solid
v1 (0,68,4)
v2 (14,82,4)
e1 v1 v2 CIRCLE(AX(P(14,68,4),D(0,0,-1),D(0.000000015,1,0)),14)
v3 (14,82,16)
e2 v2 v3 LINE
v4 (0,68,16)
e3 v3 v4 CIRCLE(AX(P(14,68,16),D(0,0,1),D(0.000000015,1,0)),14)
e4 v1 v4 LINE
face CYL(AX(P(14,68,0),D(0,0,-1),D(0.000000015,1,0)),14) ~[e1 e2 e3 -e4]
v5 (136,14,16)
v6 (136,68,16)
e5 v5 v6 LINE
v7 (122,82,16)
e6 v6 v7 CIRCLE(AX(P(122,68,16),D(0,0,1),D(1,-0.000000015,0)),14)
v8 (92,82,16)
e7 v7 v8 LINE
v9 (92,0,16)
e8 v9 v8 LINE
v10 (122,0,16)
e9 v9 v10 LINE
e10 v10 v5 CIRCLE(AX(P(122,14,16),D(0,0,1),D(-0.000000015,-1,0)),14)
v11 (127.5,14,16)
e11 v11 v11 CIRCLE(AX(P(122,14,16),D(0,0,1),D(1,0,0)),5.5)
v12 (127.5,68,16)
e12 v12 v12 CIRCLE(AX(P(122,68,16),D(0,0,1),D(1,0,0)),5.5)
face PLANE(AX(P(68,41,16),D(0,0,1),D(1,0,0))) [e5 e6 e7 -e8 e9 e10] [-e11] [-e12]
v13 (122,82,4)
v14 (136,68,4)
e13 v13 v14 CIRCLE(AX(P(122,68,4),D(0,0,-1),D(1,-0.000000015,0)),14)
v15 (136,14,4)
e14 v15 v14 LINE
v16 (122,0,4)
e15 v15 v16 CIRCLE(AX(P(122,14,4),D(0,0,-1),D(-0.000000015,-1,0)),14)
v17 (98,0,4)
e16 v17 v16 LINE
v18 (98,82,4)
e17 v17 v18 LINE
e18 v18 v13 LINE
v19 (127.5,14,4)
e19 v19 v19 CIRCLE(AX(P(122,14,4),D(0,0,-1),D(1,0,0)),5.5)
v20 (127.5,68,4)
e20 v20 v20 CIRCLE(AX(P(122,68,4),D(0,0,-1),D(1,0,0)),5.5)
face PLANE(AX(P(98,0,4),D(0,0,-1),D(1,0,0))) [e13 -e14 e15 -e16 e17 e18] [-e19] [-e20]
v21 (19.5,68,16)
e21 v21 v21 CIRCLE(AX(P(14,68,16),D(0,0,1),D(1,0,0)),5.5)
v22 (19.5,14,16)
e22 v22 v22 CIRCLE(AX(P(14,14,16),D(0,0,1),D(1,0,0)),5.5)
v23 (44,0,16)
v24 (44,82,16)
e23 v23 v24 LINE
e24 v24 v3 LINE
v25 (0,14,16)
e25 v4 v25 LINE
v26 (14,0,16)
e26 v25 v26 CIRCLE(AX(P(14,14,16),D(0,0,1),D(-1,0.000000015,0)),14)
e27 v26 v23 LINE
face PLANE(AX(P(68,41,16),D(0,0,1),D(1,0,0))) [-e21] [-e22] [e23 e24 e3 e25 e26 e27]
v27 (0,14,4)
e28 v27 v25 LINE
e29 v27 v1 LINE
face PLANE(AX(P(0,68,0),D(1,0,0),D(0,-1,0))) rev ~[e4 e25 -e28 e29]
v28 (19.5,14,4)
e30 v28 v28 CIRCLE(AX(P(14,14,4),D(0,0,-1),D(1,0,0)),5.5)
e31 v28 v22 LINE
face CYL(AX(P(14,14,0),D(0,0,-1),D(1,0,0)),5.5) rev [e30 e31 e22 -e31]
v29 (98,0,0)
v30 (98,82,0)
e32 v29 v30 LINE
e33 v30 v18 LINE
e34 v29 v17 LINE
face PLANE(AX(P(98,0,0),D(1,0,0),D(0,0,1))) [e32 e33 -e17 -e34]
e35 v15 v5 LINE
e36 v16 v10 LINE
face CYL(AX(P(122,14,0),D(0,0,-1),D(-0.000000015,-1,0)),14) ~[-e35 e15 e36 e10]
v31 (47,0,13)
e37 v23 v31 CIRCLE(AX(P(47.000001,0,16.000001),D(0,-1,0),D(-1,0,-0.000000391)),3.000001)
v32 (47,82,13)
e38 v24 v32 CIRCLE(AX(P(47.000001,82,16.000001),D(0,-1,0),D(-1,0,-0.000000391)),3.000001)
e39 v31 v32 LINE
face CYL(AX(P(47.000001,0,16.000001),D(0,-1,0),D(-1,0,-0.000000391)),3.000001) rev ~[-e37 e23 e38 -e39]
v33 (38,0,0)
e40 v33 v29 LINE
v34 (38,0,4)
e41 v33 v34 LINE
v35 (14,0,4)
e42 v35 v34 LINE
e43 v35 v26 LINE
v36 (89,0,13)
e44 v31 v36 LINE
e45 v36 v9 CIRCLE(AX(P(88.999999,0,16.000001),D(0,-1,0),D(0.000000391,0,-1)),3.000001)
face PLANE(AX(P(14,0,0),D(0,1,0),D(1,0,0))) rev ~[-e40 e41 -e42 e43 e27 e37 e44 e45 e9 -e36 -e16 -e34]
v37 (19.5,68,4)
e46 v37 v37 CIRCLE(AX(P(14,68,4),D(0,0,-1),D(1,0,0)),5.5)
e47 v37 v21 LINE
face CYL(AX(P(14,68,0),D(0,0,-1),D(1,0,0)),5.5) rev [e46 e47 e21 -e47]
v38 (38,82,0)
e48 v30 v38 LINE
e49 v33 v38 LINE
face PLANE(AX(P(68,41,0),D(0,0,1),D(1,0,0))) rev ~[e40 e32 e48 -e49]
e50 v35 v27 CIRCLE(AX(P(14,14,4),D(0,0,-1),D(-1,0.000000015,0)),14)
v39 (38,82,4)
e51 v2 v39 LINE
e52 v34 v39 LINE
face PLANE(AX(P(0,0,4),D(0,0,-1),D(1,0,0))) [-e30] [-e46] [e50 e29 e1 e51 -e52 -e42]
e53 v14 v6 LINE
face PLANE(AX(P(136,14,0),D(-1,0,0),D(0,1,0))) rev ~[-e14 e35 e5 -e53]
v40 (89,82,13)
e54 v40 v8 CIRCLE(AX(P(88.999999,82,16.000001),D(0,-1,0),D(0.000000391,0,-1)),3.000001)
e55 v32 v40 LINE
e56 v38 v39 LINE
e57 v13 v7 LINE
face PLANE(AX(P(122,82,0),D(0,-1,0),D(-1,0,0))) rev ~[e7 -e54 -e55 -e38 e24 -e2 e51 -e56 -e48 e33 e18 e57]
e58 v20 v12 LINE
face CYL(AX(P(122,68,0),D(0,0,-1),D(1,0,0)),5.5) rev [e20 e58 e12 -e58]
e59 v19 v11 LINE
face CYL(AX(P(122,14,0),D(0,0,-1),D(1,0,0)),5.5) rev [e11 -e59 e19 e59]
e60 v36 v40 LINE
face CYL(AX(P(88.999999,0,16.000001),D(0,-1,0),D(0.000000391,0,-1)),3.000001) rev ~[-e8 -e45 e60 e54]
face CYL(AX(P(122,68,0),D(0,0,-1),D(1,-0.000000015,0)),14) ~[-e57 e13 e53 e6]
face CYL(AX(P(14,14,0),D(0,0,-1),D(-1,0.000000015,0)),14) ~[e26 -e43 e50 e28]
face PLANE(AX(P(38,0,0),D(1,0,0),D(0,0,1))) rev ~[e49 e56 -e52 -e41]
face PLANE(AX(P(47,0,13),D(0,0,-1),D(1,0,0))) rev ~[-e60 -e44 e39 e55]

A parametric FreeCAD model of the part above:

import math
import FreeCAD as App
import Part
import Sketcher

V = App.Vector
Q = App.Units.Quantity


def add_polygon(sketch, points):
    """Adds a closed chain of lines whose ends are joined by coincident constraints."""
    first, n = sketch.GeometryCount, len(points)
    for a, b in zip(points, points[1:] + points[:1]):
        sketch.addGeometry(Part.LineSegment(App.Vector(*a, 0), App.Vector(*b, 0)), False)
    for i in range(n):
        sketch.addConstraint(Sketcher.Constraint("Coincident", first + i, 2, first + (i + 1) % n, 1))

doc = App.newDocument("Part")
body = doc.addObject("PartDesign::Body", "Body")

sketch1 = body.newObject("Sketcher::SketchObject", "Sketch")
sketch1.AttachmentSupport = (doc.getObject("XY_Plane"), [""])
sketch1.MapMode = "FlatFace"
sketch1.addGeometry([
    Part.ArcOfCircle(Part.Circle(V(14, 14, 0), V(0, 0, 1), 14), math.radians(180), math.radians(270)),
    Part.LineSegment(V(14, 0, 0), V(122, 0, 0)),
    Part.ArcOfCircle(Part.Circle(V(122, 14, 0), V(0, 0, 1), 14), math.radians(-90), math.radians(0)),
    Part.LineSegment(V(136, 14, 0), V(136, 68, 0)),
    Part.ArcOfCircle(Part.Circle(V(122, 68, 0), V(0, 0, 1), 14), math.radians(0), math.radians(90)),
    Part.LineSegment(V(122, 82, 0), V(14, 82, 0)),
    Part.ArcOfCircle(Part.Circle(V(14, 68, 0), V(0, 0, 1), 14), math.radians(90), math.radians(180)),
    Part.LineSegment(V(0, 68, 0), V(0, 14, 0)),
    Part.Circle(V(14, 14, 0), V(0, 0, 1), 6),
    Part.Circle(V(122, 14, 0), V(0, 0, 1), 6),
    Part.Circle(V(14, 68, 0), V(0, 0, 1), 6),
    Part.Circle(V(122, 68, 0), V(0, 0, 1), 6),
], False)
sketch1.addConstraint([
    Sketcher.Constraint("Tangent", 0, 2, 1, 1),
    Sketcher.Constraint("Tangent", 1, 2, 2, 1),
    Sketcher.Constraint("Tangent", 2, 2, 3, 1),
    Sketcher.Constraint("Tangent", 3, 2, 4, 1),
    Sketcher.Constraint("Tangent", 4, 2, 5, 1),
    Sketcher.Constraint("Tangent", 5, 2, 6, 1),
    Sketcher.Constraint("Tangent", 6, 2, 7, 1),
    Sketcher.Constraint("Tangent", 7, 2, 0, 1),
    Sketcher.Constraint("Horizontal", 1),
    Sketcher.Constraint("Vertical", 3),
    Sketcher.Constraint("Horizontal", 5),
    Sketcher.Constraint("Vertical", 7),
    Sketcher.Constraint("Coincident", 8, 3, 0, 3),
    Sketcher.Constraint("Coincident", 9, 3, 2, 3),
    Sketcher.Constraint("Coincident", 10, 3, 6, 3),
    Sketcher.Constraint("Coincident", 11, 3, 4, 3),
    Sketcher.Constraint("Equal", 0, 2),
    Sketcher.Constraint("Equal", 2, 4),
    Sketcher.Constraint("Equal", 4, 6),
    Sketcher.Constraint("Equal", 8, 9),
    Sketcher.Constraint("Equal", 9, 10),
    Sketcher.Constraint("Equal", 10, 11),
    Sketcher.Constraint("PointOnObject", 0, 2, -1),
    Sketcher.Constraint("PointOnObject", 6, 2, -2),
    Sketcher.Constraint("Diameter", 8, Q("11 mm")),
    Sketcher.Constraint("Radius", 0, Q("14 mm")),
    Sketcher.Constraint("DistanceX", 1, 1, 1, 2, Q("108 mm")),
    Sketcher.Constraint("DistanceY", 3, 1, 3, 2, Q("54 mm")),
])
pad1 = body.newObject("PartDesign::Pad", "Pad")
pad1.Profile = sketch1
pad1.Length = 16

sketch2 = body.newObject("Sketcher::SketchObject", "Sketch001")
sketch2.AttachmentSupport = (doc.getObject("XZ_Plane"), [""])
sketch2.MapMode = "FlatFace"
add_polygon(sketch2, [(0, 4), (0, 0), (38, 0), (38, 4)])
add_polygon(sketch2, [(98, 4), (98, 0), (136, 0), (136, 4)])
sketch2.addGeometry(Part.LineSegment(V(92, 16, 0), V(44, 16, 0)), False)
sketch2.addGeometry(Part.ArcOfCircle(Part.Circle(V(47, 16, 0), V(0, 0, 1), 3), math.radians(-180), math.radians(-90)), False)
sketch2.addGeometry(Part.LineSegment(V(47, 13, 0), V(89, 13, 0)), False)
sketch2.addGeometry(Part.ArcOfCircle(Part.Circle(V(89, 16, 0), V(0, 0, 1), 3), math.radians(-90), math.radians(0)), False)
sketch2.addConstraint([
    Sketcher.Constraint("Coincident", 8, 2, 9, 1),
    Sketcher.Constraint("Tangent", 9, 2, 10, 1),
    Sketcher.Constraint("Tangent", 10, 2, 11, 1),
    Sketcher.Constraint("Coincident", 11, 2, 8, 1),
    Sketcher.Constraint("Vertical", 0),
    Sketcher.Constraint("Horizontal", 1),
    Sketcher.Constraint("Vertical", 2),
    Sketcher.Constraint("Horizontal", 3),
    Sketcher.Constraint("Vertical", 4),
    Sketcher.Constraint("Horizontal", 5),
    Sketcher.Constraint("Vertical", 6),
    Sketcher.Constraint("Horizontal", 7),
    Sketcher.Constraint("Horizontal", 8),
    Sketcher.Constraint("Horizontal", 10),
    Sketcher.Constraint("Coincident", 0, 2, -1, 1),
    Sketcher.Constraint("Equal", 9, 11),
    Sketcher.Constraint("PointOnObject", 4, 2, -1),
    Sketcher.Constraint("Horizontal", 3, 2, 6, 2),
    Sketcher.Constraint("Horizontal", 11, 3, 8, 2),
    Sketcher.Constraint("Equal", 3, 5),
    Sketcher.Constraint("Radius", 9, Q("3.000001 mm")),
    Sketcher.Constraint("DistanceX", 1, 1, 1, 2, Q("38 mm")),
    Sketcher.Constraint("DistanceX", 8, 2, 8, 1, Q("48 mm")),
    Sketcher.Constraint("DistanceY", 0, 2, 0, 1, Q("4 mm")),
    Sketcher.Constraint("DistanceX", -1, 1, 9, 3, Q("47.000001 mm")),
    Sketcher.Constraint("DistanceY", -1, 1, 9, 3, Q("16.000001 mm")),
    Sketcher.Constraint("DistanceX", -1, 1, 4, 2, Q("98 mm")),
])
pocket1 = body.newObject("PartDesign::Pocket", "Pocket")
pocket1.Profile = sketch2
pocket1.Type = "ThroughAll"

doc.recompute()
